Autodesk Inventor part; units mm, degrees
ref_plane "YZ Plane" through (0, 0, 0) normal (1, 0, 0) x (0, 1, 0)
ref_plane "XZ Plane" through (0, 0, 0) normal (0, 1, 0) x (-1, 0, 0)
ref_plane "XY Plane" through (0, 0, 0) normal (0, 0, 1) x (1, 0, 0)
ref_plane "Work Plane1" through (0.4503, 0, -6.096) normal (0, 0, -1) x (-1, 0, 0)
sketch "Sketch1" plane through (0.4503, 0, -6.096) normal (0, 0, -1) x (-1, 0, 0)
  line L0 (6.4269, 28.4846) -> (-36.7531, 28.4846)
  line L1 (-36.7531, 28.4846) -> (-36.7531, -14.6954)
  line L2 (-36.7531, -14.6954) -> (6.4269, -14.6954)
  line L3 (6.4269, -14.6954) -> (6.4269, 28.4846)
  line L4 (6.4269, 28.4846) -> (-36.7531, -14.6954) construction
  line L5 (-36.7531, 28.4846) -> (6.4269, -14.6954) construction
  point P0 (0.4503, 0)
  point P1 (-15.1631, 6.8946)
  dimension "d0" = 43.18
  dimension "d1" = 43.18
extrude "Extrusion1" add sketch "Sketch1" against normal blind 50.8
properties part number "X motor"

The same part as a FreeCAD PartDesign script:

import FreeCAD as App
import Part
import Sketcher

V = App.Vector
Q = App.Units.Quantity

doc = App.newDocument("Part")
body = doc.addObject("PartDesign::Body", "Body")

# Sketch on XY plane
sketch1 = body.newObject("Sketcher::SketchObject", "Sketch")
sketch1.AttachmentSupport = (doc.getObject("XY_Plane"), [""])
sketch1.MapMode = "FlatFace"
sketch1.AttachmentOffset = App.Placement(V(0, 0, -0.24 * 25.4), App.Rotation())
sketch1.addGeometry([
    Part.LineSegment(V(-5.9766, -14.6954, 0), V(-5.9766, 28.4846, 0)),
    Part.LineSegment(V(-5.9766, 28.4846, 0), V(37.2034, 28.4846, 0)),
    Part.LineSegment(V(37.2034, 28.4846, 0), V(37.2034, -14.6954, 0)),
    Part.LineSegment(V(37.2034, -14.6954, 0), V(-5.9766, -14.6954, 0)),
], False)
sketch1.addConstraint([
    Sketcher.Constraint("Coincident", 0, 2, 1, 1),
    Sketcher.Constraint("Coincident", 1, 2, 2, 1),
    Sketcher.Constraint("Coincident", 2, 2, 3, 1),
    Sketcher.Constraint("Coincident", 3, 2, 0, 1),
    Sketcher.Constraint("Vertical", 0),
    Sketcher.Constraint("Horizontal", 1),
    Sketcher.Constraint("Vertical", 2),
    Sketcher.Constraint("Horizontal", 3),
    Sketcher.Constraint("Equal", 3, 0),
    Sketcher.Constraint("DistanceX", 1, 1, 1, 2, Q("1.7 in")),
    Sketcher.Constraint("DistanceX", 0, 2, -1, 1, Q("0.2353 in")),
    Sketcher.Constraint("DistanceY", -1, 1, 0, 2, Q("28.4846 mm")),
])
pad1 = body.newObject("PartDesign::Pad", "Pad")
pad1.Profile = sketch1
pad1.Length = Q("2 in")

doc.recompute()
